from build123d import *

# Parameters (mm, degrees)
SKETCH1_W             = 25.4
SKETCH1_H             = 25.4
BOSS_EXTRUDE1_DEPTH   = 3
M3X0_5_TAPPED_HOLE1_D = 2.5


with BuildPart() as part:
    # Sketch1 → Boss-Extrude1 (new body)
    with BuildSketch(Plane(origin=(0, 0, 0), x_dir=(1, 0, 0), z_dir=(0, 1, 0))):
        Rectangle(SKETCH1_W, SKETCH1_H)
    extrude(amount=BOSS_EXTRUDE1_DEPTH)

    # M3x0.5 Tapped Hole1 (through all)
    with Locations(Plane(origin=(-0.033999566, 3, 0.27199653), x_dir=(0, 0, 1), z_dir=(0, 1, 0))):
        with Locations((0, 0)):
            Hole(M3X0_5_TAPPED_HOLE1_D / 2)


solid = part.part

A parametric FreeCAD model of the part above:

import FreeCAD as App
import Part
import Sketcher

doc = App.newDocument("Part")
params = doc.addObject("Spreadsheet::Sheet", "Params")
for row, (alias, value) in enumerate([
    ("sketch1_width", "25.4 mm"),
    ("pad1_length", "3 mm"),
    ("sketch2_diameter", "2.5 mm"),
    ("hole_diameter", "2.5 mm"),
], start=1):
    params.set(f"A{row}", alias)
    params.set(f"B{row}", "=" + value)
    params.setAlias(f"B{row}", alias)

body = doc.addObject("PartDesign::Body", "Body")

# Sketch on XZ plane
sketch1 = body.newObject("Sketcher::SketchObject", "Sketch")
sketch1.AttachmentSupport = (doc.getObject("XZ_Plane"), [""])
sketch1.MapMode = "FlatFace"
sketch1.addGeometry([
    Part.LineSegment(App.Vector(-13, -13, 0), App.Vector(-13, 13, 0)),
    Part.LineSegment(App.Vector(-13, 13, 0), App.Vector(13, 13, 0)),
    Part.LineSegment(App.Vector(13, 13, 0), App.Vector(13, -13, 0)),
    Part.LineSegment(App.Vector(13, -13, 0), App.Vector(-13, -13, 0)),
], False)
sketch1.addConstraint([
    Sketcher.Constraint("Coincident", 0, 2, 1, 1),
    Sketcher.Constraint("Coincident", 1, 2, 2, 1),
    Sketcher.Constraint("Coincident", 2, 2, 3, 1),
    Sketcher.Constraint("Coincident", 3, 2, 0, 1),
    Sketcher.Constraint("Vertical", 0),
    Sketcher.Constraint("Horizontal", 1),
    Sketcher.Constraint("Vertical", 2),
    Sketcher.Constraint("Horizontal", 3),
    Sketcher.Constraint("Symmetric", 0, 2, 2, 2, -1, 1),
    Sketcher.Constraint("Equal", 3, 0),
    Sketcher.Constraint("DistanceX", 1, 1, 1, 2, 25.4),
])
sketch1.setExpression("Constraints[10]", "Params.sketch1_width")
pad1 = body.newObject("PartDesign::Pad", "Pad")
pad1.Profile = sketch1
pad1.setExpression("Length", "Params.pad1_length")
pad1.Reversed = True

# Sketch on XZ plane
sketch2 = body.newObject("Sketcher::SketchObject", "Sketch001")
sketch2.AttachmentSupport = (doc.getObject("XZ_Plane"), [""])
sketch2.MapMode = "FlatFace"
sketch2.AttachmentOffset = App.Placement(App.Vector(0, 0, -3), App.Rotation())
sketch2.addGeometry(Part.Circle(App.Vector(0, 0.3, 0), App.Vector(0, 0, 1), 1.2), False)
sketch2.addConstraint([
    Sketcher.Constraint("Diameter", 0, 2.5),
    Sketcher.Constraint("DistanceX", 0, 3, -1, 1, 0.034),
    Sketcher.Constraint("DistanceY", -1, 1, 0, 3, 0.271997),
])
sketch2.setExpression("Constraints[0]", "Params.sketch2_diameter")
doc.recompute()
hole = body.newObject("PartDesign::Hole", "Hole")
hole.Profile = sketch2
hole.ThreadType = "None"
hole.setExpression("Diameter", "Params.hole_diameter")
hole.DepthType = "ThroughAll"
hole.Reversed = True

doc.recompute()
